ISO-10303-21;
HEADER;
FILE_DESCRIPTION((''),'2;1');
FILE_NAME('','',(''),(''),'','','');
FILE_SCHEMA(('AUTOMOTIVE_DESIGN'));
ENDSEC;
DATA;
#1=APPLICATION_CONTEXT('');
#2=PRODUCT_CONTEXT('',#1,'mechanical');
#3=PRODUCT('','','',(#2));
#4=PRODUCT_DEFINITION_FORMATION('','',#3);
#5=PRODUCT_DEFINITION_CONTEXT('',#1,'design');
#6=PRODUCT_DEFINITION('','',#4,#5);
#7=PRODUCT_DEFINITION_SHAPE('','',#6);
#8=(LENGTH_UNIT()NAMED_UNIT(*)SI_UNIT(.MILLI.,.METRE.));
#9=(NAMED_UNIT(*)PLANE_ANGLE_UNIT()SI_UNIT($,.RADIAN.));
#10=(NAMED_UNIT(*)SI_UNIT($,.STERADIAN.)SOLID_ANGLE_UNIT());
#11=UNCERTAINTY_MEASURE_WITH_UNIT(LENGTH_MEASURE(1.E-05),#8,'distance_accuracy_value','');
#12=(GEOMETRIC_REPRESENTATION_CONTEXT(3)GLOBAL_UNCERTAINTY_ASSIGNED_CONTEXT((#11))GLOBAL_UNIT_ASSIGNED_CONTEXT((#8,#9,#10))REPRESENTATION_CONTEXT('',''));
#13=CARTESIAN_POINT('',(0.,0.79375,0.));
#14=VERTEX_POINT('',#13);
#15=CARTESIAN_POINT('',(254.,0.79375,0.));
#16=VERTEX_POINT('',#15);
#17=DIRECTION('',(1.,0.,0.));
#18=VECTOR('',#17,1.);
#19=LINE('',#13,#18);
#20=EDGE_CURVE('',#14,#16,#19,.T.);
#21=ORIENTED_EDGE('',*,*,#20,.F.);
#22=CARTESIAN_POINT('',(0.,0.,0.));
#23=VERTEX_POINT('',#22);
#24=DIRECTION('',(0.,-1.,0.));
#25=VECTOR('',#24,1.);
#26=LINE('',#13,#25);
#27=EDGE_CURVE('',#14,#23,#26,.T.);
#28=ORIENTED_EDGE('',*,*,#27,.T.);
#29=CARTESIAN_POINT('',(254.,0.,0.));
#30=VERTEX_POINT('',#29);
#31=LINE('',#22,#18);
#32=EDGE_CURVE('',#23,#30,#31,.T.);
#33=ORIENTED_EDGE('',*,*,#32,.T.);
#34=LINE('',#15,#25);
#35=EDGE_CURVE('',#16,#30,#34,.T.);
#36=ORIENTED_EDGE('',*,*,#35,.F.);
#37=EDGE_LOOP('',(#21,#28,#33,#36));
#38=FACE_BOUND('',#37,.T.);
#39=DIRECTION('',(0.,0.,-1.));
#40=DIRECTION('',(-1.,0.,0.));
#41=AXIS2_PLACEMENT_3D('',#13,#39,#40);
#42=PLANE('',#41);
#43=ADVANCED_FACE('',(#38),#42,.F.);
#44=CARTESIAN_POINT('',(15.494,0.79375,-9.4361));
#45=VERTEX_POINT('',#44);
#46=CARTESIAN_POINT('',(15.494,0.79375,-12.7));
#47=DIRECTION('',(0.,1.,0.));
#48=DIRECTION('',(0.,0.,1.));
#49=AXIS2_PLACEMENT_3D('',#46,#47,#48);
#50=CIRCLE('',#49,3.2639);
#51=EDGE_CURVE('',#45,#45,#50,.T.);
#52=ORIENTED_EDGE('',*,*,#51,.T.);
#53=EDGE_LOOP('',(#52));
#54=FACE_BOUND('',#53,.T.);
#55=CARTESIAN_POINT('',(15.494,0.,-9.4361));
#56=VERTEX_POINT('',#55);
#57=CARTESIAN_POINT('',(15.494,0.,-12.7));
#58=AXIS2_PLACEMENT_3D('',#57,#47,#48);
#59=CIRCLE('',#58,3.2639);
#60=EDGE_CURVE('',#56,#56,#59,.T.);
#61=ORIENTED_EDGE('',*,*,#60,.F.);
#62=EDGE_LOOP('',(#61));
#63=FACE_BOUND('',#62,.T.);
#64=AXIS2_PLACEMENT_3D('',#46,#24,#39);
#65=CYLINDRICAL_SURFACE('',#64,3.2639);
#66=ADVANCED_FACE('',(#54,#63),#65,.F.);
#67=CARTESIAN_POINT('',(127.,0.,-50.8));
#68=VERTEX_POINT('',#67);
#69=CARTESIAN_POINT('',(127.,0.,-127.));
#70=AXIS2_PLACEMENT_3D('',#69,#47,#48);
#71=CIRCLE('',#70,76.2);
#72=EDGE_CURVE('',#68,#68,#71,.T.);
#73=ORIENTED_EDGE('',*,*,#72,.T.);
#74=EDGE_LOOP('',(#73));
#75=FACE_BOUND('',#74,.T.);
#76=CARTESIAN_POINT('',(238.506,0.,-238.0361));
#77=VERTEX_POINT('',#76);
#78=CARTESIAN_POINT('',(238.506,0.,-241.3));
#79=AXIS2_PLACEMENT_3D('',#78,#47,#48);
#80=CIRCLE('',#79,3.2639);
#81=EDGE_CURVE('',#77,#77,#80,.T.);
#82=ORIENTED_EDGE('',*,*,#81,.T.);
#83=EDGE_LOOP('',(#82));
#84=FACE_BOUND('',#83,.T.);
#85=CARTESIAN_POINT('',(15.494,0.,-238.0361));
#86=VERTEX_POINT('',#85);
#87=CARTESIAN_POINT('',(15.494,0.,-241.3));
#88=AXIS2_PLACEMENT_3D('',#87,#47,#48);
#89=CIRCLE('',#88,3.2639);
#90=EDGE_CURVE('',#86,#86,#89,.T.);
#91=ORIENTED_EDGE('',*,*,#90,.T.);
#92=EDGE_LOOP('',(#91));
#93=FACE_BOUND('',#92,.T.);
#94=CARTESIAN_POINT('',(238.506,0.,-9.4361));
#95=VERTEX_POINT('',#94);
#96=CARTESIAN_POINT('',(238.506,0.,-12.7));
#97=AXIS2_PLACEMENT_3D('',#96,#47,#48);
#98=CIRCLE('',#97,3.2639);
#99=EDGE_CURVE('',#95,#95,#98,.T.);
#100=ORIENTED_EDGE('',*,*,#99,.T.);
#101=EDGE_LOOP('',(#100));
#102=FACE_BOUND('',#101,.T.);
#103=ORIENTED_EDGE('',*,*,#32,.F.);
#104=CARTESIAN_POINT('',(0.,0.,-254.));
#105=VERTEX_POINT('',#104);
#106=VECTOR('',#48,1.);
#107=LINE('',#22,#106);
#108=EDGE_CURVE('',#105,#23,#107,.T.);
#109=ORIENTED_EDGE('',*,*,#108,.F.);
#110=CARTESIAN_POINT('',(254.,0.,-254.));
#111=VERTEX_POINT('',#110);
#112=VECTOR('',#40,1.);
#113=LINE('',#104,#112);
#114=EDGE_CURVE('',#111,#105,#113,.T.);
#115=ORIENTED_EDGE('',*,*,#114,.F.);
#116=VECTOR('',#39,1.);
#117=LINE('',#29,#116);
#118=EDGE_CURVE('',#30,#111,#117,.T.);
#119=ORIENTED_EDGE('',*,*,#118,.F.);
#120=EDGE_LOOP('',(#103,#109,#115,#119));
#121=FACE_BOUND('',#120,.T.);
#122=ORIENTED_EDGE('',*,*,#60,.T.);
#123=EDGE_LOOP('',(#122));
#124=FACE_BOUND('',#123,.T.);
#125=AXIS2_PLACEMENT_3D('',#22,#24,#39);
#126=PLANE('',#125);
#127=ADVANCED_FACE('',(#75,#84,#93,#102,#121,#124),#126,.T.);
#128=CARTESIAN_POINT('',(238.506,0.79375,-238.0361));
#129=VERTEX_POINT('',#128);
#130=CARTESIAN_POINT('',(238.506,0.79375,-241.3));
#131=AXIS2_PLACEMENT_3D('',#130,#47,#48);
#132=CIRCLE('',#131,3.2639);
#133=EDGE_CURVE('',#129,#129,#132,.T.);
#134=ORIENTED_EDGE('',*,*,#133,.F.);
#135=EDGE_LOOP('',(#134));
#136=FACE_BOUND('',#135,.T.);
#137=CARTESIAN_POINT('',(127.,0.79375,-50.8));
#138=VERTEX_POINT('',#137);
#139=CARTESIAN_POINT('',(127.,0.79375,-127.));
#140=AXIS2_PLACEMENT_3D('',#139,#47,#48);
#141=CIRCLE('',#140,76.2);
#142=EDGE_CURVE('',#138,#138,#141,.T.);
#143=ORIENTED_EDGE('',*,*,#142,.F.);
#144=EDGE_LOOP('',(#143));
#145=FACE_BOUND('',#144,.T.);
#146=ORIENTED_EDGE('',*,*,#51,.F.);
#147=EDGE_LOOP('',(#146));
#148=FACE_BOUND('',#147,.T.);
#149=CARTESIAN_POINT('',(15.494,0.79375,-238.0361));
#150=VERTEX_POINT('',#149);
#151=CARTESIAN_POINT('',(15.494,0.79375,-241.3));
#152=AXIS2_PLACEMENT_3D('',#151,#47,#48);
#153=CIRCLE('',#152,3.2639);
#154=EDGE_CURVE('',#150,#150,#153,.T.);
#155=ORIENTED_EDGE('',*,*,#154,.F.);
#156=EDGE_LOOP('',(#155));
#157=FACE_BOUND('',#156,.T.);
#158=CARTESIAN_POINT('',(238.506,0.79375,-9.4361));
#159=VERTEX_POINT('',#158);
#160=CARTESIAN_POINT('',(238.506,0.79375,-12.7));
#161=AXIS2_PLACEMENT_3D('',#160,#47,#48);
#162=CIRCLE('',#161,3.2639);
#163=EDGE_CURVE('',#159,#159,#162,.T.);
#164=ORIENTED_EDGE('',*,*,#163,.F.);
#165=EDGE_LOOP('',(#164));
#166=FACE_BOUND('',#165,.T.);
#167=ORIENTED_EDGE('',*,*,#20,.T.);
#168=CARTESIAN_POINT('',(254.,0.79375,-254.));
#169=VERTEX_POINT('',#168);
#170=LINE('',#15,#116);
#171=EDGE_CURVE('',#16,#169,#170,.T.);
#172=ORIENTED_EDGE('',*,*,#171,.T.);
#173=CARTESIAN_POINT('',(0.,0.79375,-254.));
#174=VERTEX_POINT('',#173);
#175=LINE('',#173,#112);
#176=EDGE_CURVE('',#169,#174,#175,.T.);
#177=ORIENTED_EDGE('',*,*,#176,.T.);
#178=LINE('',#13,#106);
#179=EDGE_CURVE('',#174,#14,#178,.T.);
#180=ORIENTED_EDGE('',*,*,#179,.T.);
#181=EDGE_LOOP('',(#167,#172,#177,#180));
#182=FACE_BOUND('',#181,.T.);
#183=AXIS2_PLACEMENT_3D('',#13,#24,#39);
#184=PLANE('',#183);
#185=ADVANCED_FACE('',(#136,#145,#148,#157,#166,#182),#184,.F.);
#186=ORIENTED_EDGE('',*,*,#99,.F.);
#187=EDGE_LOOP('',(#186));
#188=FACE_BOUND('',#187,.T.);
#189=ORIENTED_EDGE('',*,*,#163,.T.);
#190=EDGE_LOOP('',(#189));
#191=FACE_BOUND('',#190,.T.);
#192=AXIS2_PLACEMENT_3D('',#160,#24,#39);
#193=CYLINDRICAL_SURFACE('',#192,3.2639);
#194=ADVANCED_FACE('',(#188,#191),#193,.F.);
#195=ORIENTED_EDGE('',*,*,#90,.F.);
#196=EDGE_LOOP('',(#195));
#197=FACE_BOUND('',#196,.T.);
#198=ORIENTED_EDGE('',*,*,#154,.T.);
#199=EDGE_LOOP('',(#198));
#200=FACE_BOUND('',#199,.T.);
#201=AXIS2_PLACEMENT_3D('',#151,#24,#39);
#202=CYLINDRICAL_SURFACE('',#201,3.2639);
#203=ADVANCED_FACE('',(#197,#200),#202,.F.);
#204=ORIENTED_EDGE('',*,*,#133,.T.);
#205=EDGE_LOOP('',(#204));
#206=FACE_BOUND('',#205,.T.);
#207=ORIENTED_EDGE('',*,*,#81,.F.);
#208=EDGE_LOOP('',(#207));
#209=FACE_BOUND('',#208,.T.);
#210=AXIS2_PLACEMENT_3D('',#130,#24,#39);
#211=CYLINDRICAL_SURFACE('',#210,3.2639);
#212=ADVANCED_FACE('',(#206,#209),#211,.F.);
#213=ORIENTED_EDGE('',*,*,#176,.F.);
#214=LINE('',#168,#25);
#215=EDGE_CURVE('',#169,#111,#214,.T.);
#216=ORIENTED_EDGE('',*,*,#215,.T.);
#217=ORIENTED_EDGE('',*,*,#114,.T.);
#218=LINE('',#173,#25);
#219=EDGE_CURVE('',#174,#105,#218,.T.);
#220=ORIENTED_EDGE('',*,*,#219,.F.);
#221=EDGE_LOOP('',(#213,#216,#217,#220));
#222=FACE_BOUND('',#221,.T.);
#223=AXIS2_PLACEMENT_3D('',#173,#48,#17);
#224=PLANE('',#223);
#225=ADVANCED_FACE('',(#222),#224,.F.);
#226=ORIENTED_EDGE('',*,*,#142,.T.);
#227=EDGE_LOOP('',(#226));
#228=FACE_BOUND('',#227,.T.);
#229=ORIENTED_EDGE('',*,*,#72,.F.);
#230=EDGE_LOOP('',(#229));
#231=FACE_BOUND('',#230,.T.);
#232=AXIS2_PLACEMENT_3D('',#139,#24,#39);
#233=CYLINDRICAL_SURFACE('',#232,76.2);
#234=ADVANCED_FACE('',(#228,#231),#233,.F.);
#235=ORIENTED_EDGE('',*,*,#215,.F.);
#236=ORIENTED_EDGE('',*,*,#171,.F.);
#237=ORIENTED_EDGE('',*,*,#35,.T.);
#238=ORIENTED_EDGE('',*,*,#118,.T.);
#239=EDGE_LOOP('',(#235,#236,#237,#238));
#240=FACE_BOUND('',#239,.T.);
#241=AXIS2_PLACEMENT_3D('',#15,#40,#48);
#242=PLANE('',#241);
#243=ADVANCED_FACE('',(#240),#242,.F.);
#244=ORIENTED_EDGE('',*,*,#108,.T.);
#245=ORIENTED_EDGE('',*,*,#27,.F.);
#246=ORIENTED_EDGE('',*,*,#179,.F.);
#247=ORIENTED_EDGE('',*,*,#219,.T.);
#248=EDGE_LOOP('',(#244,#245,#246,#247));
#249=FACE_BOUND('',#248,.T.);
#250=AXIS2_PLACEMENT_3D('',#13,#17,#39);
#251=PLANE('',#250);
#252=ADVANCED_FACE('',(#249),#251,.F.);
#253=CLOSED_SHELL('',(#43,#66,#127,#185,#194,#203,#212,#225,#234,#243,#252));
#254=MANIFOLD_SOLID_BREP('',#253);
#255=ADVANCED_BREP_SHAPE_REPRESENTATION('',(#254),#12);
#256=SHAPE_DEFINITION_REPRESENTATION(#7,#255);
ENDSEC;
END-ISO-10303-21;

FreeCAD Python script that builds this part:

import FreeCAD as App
import Part
import Sketcher
from FreeCAD import Vector
Q = App.Units.Quantity


def add_polygon(sketch, points):
    """Adds a closed chain of lines whose ends are joined by coincident constraints."""
    first, n = sketch.GeometryCount, len(points)
    for a, b in zip(points, points[1:] + points[:1]):
        sketch.addGeometry(Part.LineSegment(App.Vector(*a, 0), App.Vector(*b, 0)), False)
    for i in range(n):
        sketch.addConstraint(Sketcher.Constraint("Coincident", first + i, 2, first + (i + 1) % n, 1))

doc = App.newDocument("Part")
body = doc.addObject("PartDesign::Body", "Body")

# Sketch on XZ plane
sketch1 = doc.addObject("Sketcher::SketchObject", "Sketch")
body.addObject(sketch1)
sketch1.AttachmentSupport = (doc.XZ_Plane, [""])
sketch1.MapMode = "FlatFace"
add_polygon(sketch1, [(0, -254), (0, 0), (254, 0), (254, -254)])  # lines 0-3
sketch1.addGeometry(Part.Circle(Vector(15.5, -12.7, 0), Vector(0, 0, 1), 3.3), False)  # 4
sketch1.addGeometry(Part.Circle(Vector(238.5, -12.7, 0), Vector(0, 0, 1), 3.3), False)  # 5
sketch1.addGeometry(Part.Circle(Vector(15.5, -241.3, 0), Vector(0, 0, 1), 3.3), False)  # 6
sketch1.addGeometry(Part.Circle(Vector(127, -127, 0), Vector(0, 0, 1), 76.2), False)  # 7
sketch1.addGeometry(Part.Circle(Vector(238.5, -241.3, 0), Vector(0, 0, 1), 3.3), False)  # 8
sketch1.addConstraint([
    Sketcher.Constraint("Vertical", 0),
    Sketcher.Constraint("Horizontal", 1),
    Sketcher.Constraint("Vertical", 2),
    Sketcher.Constraint("Horizontal", 3),
    Sketcher.Constraint("Coincident", 0, 2, -1, 1),
    Sketcher.Constraint("Equal", 4, 5),
    Sketcher.Constraint("Equal", 5, 6),
    Sketcher.Constraint("Equal", 6, 8),
    Sketcher.Constraint("Horizontal", 4, 3, 5, 3),
    Sketcher.Constraint("Horizontal", 6, 3, 8, 3),
    Sketcher.Constraint("Vertical", 4, 3, 6, 3),
    Sketcher.Constraint("Vertical", 5, 3, 8, 3),
    Sketcher.Constraint("Equal", 3, 0),
    Sketcher.Constraint("Diameter", 7, Q("6 in")),
    Sketcher.Constraint("DistanceX", 1, 1, 1, 2, Q("10 in")),
    Sketcher.Constraint("Diameter", 4, Q("0.257 in")),
    Sketcher.Constraint("DistanceX", -1, 1, 7, 3, Q("5 in")),
    Sketcher.Constraint("DistanceY", 7, 3, -1, 1, Q("5 in")),
    Sketcher.Constraint("DistanceY", 6, 3, 4, 3, Q("9 in")),
    Sketcher.Constraint("DistanceY", 4, 3, -1, 1, Q("0.5 in")),
    Sketcher.Constraint("DistanceX", -1, 1, 4, 3, Q("0.61 in")),
    Sketcher.Constraint("DistanceX", -1, 1, 5, 3, Q("9.39 in")),
])
pad1 = doc.addObject("PartDesign::Pad", "Pad")
body.addObject(pad1)
pad1.Profile = sketch1
pad1.Length = Q("0.03125 in")
pad1.Reversed = True

doc.recompute()
